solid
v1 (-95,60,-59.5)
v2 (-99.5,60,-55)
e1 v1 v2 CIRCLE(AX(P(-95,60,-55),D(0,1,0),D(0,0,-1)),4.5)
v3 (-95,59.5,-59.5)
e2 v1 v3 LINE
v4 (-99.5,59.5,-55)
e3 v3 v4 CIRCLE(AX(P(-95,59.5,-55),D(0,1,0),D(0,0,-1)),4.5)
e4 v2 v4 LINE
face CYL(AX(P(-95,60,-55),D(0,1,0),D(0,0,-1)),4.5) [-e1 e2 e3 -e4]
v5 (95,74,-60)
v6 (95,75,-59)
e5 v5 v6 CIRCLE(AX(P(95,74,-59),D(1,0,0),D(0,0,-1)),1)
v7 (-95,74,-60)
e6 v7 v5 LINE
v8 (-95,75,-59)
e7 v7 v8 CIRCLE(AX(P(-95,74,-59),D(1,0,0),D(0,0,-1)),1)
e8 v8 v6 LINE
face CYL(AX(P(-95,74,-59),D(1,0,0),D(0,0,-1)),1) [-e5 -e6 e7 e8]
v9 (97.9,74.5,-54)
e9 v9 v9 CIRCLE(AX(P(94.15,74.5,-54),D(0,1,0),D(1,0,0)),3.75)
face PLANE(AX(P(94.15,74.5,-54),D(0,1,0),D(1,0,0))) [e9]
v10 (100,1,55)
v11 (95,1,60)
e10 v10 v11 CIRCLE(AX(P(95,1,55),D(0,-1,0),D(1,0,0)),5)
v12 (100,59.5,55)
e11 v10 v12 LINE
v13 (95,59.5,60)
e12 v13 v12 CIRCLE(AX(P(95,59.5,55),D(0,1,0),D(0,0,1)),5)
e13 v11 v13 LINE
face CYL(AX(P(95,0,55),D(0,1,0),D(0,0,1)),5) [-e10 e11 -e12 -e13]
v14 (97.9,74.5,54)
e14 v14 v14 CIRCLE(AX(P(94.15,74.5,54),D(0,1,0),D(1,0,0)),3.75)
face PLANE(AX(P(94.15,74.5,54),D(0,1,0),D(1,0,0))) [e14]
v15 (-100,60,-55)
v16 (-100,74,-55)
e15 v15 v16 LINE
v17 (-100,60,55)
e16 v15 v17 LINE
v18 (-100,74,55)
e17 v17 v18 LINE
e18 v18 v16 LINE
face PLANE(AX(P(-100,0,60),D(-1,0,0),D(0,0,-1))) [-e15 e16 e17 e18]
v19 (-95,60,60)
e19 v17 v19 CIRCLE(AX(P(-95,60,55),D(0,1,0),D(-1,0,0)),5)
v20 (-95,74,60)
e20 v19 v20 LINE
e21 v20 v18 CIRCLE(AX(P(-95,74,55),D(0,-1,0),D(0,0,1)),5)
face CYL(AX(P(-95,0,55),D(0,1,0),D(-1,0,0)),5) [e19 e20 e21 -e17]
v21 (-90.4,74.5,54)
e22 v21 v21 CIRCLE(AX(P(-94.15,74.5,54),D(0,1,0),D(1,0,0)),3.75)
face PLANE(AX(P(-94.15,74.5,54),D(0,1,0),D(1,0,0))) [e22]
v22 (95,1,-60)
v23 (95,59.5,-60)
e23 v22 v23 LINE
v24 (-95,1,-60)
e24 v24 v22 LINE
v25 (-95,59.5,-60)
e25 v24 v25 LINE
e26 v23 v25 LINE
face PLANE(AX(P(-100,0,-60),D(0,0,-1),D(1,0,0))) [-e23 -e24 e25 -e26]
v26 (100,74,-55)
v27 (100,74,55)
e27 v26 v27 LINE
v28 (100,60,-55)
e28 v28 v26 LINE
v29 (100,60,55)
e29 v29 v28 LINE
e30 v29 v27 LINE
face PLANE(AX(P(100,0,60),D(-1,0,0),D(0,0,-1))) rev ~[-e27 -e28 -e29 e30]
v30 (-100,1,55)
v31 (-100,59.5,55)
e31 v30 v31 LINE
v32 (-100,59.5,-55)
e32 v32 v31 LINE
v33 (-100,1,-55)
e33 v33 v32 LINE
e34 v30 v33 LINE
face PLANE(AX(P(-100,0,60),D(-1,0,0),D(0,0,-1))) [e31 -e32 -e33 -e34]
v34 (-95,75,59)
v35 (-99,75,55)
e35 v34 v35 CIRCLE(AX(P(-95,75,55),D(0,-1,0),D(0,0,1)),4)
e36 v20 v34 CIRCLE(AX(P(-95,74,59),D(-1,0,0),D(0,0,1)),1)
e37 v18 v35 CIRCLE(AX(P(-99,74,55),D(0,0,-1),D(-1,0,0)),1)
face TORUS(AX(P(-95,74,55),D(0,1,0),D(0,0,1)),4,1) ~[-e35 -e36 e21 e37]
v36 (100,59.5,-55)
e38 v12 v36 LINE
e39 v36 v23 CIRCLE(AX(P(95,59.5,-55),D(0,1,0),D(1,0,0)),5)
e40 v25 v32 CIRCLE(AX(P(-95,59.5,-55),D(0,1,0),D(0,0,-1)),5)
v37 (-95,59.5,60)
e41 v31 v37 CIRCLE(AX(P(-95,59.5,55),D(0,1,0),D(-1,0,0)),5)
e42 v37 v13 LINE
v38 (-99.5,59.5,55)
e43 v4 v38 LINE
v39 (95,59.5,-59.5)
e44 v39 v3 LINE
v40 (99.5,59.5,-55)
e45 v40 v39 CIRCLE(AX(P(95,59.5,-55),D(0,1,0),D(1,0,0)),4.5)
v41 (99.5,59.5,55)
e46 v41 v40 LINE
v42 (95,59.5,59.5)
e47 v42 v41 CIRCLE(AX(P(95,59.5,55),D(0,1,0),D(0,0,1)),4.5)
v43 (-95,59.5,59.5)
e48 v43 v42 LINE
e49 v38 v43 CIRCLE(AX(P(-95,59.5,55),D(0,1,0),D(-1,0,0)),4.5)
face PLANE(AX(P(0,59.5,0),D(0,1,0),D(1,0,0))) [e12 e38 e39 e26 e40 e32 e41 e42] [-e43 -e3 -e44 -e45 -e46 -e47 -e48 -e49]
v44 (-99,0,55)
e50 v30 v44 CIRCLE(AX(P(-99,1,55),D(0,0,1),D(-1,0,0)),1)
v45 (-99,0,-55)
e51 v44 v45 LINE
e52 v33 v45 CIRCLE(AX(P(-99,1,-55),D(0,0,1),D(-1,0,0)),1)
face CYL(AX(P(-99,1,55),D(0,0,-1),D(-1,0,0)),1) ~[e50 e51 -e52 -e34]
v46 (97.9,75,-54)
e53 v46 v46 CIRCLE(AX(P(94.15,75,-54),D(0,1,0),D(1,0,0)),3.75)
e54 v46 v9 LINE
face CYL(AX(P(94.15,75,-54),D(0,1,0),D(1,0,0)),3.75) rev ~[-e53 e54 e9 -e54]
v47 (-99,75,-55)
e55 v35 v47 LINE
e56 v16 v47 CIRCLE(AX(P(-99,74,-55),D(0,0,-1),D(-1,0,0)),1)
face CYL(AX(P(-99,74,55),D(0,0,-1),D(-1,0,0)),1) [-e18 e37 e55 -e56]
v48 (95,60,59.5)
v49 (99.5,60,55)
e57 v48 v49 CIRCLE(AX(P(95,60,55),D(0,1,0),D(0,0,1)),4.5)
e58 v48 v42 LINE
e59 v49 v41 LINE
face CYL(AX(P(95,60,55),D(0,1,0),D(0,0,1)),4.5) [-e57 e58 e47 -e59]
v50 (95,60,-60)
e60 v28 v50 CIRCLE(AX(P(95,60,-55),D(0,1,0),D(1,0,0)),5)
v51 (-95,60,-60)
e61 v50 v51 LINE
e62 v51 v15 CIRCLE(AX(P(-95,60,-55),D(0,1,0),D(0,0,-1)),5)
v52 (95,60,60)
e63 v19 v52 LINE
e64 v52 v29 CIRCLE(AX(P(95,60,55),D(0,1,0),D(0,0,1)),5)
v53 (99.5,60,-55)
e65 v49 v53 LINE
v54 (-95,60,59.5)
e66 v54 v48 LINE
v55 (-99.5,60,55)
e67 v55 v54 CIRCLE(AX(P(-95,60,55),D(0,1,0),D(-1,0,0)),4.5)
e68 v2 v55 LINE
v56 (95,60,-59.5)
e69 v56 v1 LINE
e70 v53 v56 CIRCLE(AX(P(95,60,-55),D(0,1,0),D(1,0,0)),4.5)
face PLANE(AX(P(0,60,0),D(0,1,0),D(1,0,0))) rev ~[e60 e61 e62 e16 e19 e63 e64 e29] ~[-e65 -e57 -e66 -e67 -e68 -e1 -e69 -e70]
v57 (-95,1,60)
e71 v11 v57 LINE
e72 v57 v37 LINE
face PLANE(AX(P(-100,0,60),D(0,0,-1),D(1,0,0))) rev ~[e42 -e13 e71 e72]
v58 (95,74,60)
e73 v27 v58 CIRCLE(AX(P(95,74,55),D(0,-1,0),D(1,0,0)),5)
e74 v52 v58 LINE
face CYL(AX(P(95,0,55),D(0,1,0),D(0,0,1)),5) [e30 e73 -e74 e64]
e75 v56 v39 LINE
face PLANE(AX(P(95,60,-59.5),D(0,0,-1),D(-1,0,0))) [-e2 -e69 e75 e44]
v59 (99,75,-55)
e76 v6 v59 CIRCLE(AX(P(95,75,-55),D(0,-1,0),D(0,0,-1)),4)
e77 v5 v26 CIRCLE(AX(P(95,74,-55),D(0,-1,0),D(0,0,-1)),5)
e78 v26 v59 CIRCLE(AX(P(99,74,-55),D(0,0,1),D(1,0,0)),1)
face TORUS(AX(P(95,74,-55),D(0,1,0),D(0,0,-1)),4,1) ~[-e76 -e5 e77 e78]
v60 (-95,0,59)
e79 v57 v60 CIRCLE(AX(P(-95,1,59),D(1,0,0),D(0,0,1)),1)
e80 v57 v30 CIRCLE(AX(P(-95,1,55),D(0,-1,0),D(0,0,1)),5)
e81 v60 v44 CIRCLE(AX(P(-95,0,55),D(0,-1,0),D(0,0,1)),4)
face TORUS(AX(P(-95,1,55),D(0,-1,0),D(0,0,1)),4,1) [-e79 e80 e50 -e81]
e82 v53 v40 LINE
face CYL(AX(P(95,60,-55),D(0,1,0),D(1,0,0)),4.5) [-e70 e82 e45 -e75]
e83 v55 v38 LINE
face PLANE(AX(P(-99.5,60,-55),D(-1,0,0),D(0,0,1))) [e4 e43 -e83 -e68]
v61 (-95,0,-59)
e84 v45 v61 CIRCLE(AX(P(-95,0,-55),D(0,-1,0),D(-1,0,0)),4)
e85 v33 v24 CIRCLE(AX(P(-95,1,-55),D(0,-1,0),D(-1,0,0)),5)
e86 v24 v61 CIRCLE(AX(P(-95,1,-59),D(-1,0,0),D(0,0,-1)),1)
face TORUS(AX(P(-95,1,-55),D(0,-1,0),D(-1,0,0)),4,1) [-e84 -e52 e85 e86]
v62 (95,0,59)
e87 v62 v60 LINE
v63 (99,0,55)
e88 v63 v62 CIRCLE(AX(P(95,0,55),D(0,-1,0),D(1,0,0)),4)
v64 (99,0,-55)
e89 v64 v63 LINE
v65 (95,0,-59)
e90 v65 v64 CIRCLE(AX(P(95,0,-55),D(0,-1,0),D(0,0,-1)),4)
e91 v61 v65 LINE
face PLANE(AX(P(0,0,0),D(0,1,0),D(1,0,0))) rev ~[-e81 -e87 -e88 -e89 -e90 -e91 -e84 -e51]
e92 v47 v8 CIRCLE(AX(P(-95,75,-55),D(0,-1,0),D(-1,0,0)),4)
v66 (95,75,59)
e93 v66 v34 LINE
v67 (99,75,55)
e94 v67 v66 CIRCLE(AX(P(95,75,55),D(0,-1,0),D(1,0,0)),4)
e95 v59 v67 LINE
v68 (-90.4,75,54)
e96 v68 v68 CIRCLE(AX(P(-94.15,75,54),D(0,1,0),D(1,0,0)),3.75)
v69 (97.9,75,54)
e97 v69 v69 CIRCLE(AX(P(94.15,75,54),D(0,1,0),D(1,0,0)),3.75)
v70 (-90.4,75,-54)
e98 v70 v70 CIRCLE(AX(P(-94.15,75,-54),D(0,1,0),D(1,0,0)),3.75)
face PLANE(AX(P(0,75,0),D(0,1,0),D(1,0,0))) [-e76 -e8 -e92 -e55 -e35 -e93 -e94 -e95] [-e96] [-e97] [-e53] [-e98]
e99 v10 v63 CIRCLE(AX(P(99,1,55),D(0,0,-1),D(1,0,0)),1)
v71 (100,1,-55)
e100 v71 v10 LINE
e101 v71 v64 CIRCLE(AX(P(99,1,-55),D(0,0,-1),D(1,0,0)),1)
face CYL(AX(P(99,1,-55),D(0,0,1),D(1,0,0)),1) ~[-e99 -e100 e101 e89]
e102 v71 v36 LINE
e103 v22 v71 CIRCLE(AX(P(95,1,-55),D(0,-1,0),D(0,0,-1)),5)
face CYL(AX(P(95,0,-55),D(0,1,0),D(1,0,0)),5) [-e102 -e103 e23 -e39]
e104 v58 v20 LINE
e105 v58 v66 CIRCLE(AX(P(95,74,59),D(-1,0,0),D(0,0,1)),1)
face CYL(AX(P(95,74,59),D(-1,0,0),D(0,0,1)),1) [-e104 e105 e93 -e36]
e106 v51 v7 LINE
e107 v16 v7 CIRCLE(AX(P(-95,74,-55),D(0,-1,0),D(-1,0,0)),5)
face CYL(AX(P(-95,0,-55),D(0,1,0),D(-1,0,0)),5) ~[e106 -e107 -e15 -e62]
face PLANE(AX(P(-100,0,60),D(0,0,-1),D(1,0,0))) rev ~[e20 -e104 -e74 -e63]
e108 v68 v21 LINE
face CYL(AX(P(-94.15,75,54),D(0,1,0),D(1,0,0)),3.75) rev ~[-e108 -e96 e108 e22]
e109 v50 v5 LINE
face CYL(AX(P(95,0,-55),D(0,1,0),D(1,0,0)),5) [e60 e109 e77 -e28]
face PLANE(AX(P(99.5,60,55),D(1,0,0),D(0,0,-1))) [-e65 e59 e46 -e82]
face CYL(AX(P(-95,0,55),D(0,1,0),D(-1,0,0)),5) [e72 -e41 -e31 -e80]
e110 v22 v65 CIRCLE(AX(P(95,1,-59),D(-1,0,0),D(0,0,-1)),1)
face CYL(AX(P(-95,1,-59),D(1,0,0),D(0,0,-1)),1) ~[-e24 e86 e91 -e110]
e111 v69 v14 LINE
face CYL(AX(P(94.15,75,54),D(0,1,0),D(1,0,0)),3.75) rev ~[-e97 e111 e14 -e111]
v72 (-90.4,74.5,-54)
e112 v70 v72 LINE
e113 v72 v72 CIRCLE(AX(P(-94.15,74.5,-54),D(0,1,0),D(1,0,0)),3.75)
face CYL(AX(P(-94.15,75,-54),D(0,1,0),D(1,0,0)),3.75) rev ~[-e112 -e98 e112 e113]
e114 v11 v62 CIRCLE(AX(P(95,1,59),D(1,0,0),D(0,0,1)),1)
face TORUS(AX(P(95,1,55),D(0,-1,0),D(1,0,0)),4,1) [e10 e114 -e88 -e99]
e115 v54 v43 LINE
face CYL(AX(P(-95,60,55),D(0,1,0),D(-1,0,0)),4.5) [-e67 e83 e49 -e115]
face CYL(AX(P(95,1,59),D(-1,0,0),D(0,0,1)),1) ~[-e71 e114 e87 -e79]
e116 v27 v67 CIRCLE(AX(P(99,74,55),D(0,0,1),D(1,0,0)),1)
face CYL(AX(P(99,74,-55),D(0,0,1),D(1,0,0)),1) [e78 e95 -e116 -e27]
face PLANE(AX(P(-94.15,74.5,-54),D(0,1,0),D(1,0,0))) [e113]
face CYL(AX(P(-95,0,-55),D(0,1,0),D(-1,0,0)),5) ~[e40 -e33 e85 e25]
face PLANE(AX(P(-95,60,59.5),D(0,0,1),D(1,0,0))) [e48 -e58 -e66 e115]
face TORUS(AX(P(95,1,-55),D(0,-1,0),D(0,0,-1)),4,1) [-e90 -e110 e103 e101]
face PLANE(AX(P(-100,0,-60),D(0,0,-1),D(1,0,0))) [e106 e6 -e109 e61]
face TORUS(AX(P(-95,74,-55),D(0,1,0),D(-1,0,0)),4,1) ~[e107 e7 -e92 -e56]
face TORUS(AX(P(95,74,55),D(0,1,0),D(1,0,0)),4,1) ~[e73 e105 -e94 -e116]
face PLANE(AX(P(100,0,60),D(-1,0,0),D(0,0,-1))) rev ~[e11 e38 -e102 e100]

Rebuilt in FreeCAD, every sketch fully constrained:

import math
import FreeCAD as App
import Part
import Sketcher


def edges_at(feature, points):
    """Names of the edges that pass closest to the given points."""
    edges = feature.Shape.Edges
    near = lambda p: min(range(len(edges)), key=lambda i: edges[i].distToShape(Part.Vertex(*p))[0])
    return sorted({f"Edge{near(p) + 1}" for p in points})


def add_polygon(sketch, points):
    """Adds a closed chain of lines whose ends are joined by coincident constraints."""
    first, n = sketch.GeometryCount, len(points)
    for a, b in zip(points, points[1:] + points[:1]):
        sketch.addGeometry(Part.LineSegment(App.Vector(*a, 0), App.Vector(*b, 0)), False)
    for i in range(n):
        sketch.addConstraint(Sketcher.Constraint("Coincident", first + i, 2, first + (i + 1) % n, 1))

doc = App.newDocument("Part")
params = doc.addObject("Spreadsheet::Sheet", "Params")
for row, (alias, value) in enumerate([
    ("sketch1_width", "200 mm"),
    ("sketch1_height", "120 mm"),
    ("pad1_length", "75 mm"),
    ("fillet_radius", "5 mm"),
    ("sketch2_radius", "5 mm"),
    ("sketch2_radius2", "4.5 mm"),
    ("sketch2_width", "190 mm"),
    ("sketch2_height", "110 mm"),
    ("pocket1_length", "0.5 mm"),
    ("sketch3_diameter", "7.5 mm"),
    ("pocket2_length", "0.5 mm"),
    ("fillet2_radius", "1 mm"),
], start=1):
    params.set(f"A{row}", alias)
    params.set(f"B{row}", "=" + value)
    params.setAlias(f"B{row}", alias)

body = doc.addObject("PartDesign::Body", "Body")

# Sketch on XZ plane
sketch1 = body.newObject("Sketcher::SketchObject", "Sketch")
sketch1.AttachmentSupport = (doc.getObject("XZ_Plane"), [""])
sketch1.MapMode = "FlatFace"
add_polygon(sketch1, [(-100, -60), (-100, 60), (100, 60), (100, -60)])  # lines 0-3
sketch1.addConstraint(Sketcher.Constraint("Vertical", 0))
sketch1.addConstraint(Sketcher.Constraint("Horizontal", 1))
sketch1.addConstraint(Sketcher.Constraint("Vertical", 2))
sketch1.addConstraint(Sketcher.Constraint("Horizontal", 3))
sketch1.addConstraint(Sketcher.Constraint("Symmetric", 0, 2, 2, 2, -1, 1))
sketch1.addConstraint(Sketcher.Constraint("DistanceX", 1, 1, 1, 2, 200.0))
sketch1.addConstraint(Sketcher.Constraint("DistanceY", 0, 1, 0, 2, 120.0))
sketch1.setExpression("Constraints[9]", "Params.sketch1_width")
sketch1.setExpression("Constraints[10]", "Params.sketch1_height")
pad1 = body.newObject("PartDesign::Pad", "Pad")
pad1.Profile = sketch1
pad1.setExpression("Length", "Params.pad1_length")
pad1.Reversed = True
doc.recompute()

fillet = body.newObject("PartDesign::Fillet", "Fillet")
fillet.Base = (pad1, edges_at(pad1, [
    (-100, 37.5, -60),
    (100, 37.5, -60),
    (100, 37.5, 60),
    (-100, 37.5, 60),
]))
fillet.setExpression("Radius", "Params.fillet_radius")

# Sketch on XZ plane
sketch2 = body.newObject("Sketcher::SketchObject", "Sketch001")
sketch2.AttachmentSupport = (doc.getObject("XZ_Plane"), [""])
sketch2.MapMode = "FlatFace"
sketch2.AttachmentOffset = App.Placement(App.Vector(0, 0, -60), App.Rotation())
sketch2.addGeometry(Part.LineSegment(App.Vector(95, -60, 0), App.Vector(-95, -60, 0)), False)
sketch2.addGeometry(Part.ArcOfCircle(Part.Circle(App.Vector(-95, -55, 0), App.Vector(0, 0, 1), 5), math.radians(180), math.radians(270)), False)
sketch2.addGeometry(Part.LineSegment(App.Vector(-100, -55, 0), App.Vector(-100, 55, 0)), False)
sketch2.addGeometry(Part.ArcOfCircle(Part.Circle(App.Vector(-95, 55, 0), App.Vector(0, 0, 1), 5), math.radians(90), math.radians(180)), False)
sketch2.addGeometry(Part.LineSegment(App.Vector(-95, 60, 0), App.Vector(95, 60, 0)), False)
sketch2.addGeometry(Part.ArcOfCircle(Part.Circle(App.Vector(95, 55, 0), App.Vector(0, 0, 1), 5), math.radians(0), math.radians(90)), False)
sketch2.addGeometry(Part.LineSegment(App.Vector(100, 55, 0), App.Vector(100, -55, 0)), False)
sketch2.addGeometry(Part.ArcOfCircle(Part.Circle(App.Vector(95, -55, 0), App.Vector(0, 0, 1), 5), math.radians(-90), math.radians(0)), False)
sketch2.addGeometry(Part.LineSegment(App.Vector(-95, -59.5, 0), App.Vector(95, -59.5, 0)), False)
sketch2.addGeometry(Part.ArcOfCircle(Part.Circle(App.Vector(95, -55, 0), App.Vector(0, 0, 1), 4.5), math.radians(-90), math.radians(0)), False)
sketch2.addGeometry(Part.LineSegment(App.Vector(99.5, -55, 0), App.Vector(99.5, 55, 0)), False)
sketch2.addGeometry(Part.ArcOfCircle(Part.Circle(App.Vector(95, 55, 0), App.Vector(0, 0, 1), 4.5), math.radians(0), math.radians(90)), False)
sketch2.addGeometry(Part.LineSegment(App.Vector(95, 59.5, 0), App.Vector(-95, 59.5, 0)), False)
sketch2.addGeometry(Part.ArcOfCircle(Part.Circle(App.Vector(-95, 55, 0), App.Vector(0, 0, 1), 4.5), math.radians(90), math.radians(180)), False)
sketch2.addGeometry(Part.LineSegment(App.Vector(-99.5, 55, 0), App.Vector(-99.5, -55, 0)), False)
sketch2.addGeometry(Part.ArcOfCircle(Part.Circle(App.Vector(-95, -55, 0), App.Vector(0, 0, 1), 4.5), math.radians(-180), math.radians(-90)), False)
sketch2.addConstraint(Sketcher.Constraint("Tangent", 0, 2, 1, 2))
sketch2.addConstraint(Sketcher.Constraint("Tangent", 1, 1, 2, 1))
sketch2.addConstraint(Sketcher.Constraint("Tangent", 2, 2, 3, 2))
sketch2.addConstraint(Sketcher.Constraint("Tangent", 3, 1, 4, 1))
sketch2.addConstraint(Sketcher.Constraint("Tangent", 4, 2, 5, 2))
sketch2.addConstraint(Sketcher.Constraint("Tangent", 5, 1, 6, 1))
sketch2.addConstraint(Sketcher.Constraint("Tangent", 6, 2, 7, 2))
sketch2.addConstraint(Sketcher.Constraint("Tangent", 7, 1, 0, 1))
sketch2.addConstraint(Sketcher.Constraint("Tangent", 8, 2, 9, 1))
sketch2.addConstraint(Sketcher.Constraint("Tangent", 9, 2, 10, 1))
sketch2.addConstraint(Sketcher.Constraint("Tangent", 10, 2, 11, 1))
sketch2.addConstraint(Sketcher.Constraint("Tangent", 11, 2, 12, 1))
sketch2.addConstraint(Sketcher.Constraint("Tangent", 12, 2, 13, 1))
sketch2.addConstraint(Sketcher.Constraint("Tangent", 13, 2, 14, 1))
sketch2.addConstraint(Sketcher.Constraint("Tangent", 14, 2, 15, 1))
sketch2.addConstraint(Sketcher.Constraint("Tangent", 15, 2, 8, 1))
sketch2.addConstraint(Sketcher.Constraint("Horizontal", 0))
sketch2.addConstraint(Sketcher.Constraint("Vertical", 2))
sketch2.addConstraint(Sketcher.Constraint("Horizontal", 4))
sketch2.addConstraint(Sketcher.Constraint("Vertical", 6))
sketch2.addConstraint(Sketcher.Constraint("Horizontal", 8))
sketch2.addConstraint(Sketcher.Constraint("Vertical", 10))
sketch2.addConstraint(Sketcher.Constraint("Horizontal", 12))
sketch2.addConstraint(Sketcher.Constraint("Vertical", 14))
sketch2.addConstraint(Sketcher.Constraint("Coincident", 9, 3, 7, 3))
sketch2.addConstraint(Sketcher.Constraint("Coincident", 11, 3, 5, 3))
sketch2.addConstraint(Sketcher.Constraint("Coincident", 13, 3, 3, 3))
sketch2.addConstraint(Sketcher.Constraint("Equal", 1, 3))
sketch2.addConstraint(Sketcher.Constraint("Equal", 3, 5))
sketch2.addConstraint(Sketcher.Constraint("Equal", 5, 7))
sketch2.addConstraint(Sketcher.Constraint("Equal", 13, 15))
sketch2.addConstraint(Sketcher.Constraint("Symmetric", 1, 3, 5, 3, -1, 1))
sketch2.addConstraint(Sketcher.Constraint("Radius", 1, 5.0))
sketch2.addConstraint(Sketcher.Constraint("Radius", 9, 4.5))
sketch2.addConstraint(Sketcher.Constraint("DistanceX", 0, 2, 0, 1, 190.0))
sketch2.addConstraint(Sketcher.Constraint("DistanceY", 2, 1, 2, 2, 110.0))
sketch2.setExpression("Constraints[32]", "Params.sketch2_radius")
sketch2.setExpression("Constraints[33]", "Params.sketch2_radius2")
sketch2.setExpression("Constraints[34]", "Params.sketch2_width")
sketch2.setExpression("Constraints[35]", "Params.sketch2_height")
pocket1 = body.newObject("PartDesign::Pocket", "Pocket")
pocket1.Profile = sketch2
pocket1.setExpression("Length", "Params.pocket1_length")
pocket1.Reversed = True

# Sketch on XZ plane
sketch3 = body.newObject("Sketcher::SketchObject", "Sketch002")
sketch3.AttachmentSupport = (doc.getObject("XZ_Plane"), [""])
sketch3.MapMode = "FlatFace"
sketch3.AttachmentOffset = App.Placement(App.Vector(0, 0, -75), App.Rotation())
sketch3.addGeometry(Part.Circle(App.Vector(-94.2, -54, 0), App.Vector(0, 0, 1), 3.8), False)
sketch3.addGeometry(Part.Circle(App.Vector(94.2, -54, 0), App.Vector(0, 0, 1), 3.8), False)
sketch3.addGeometry(Part.Circle(App.Vector(94.2, 54, 0), App.Vector(0, 0, 1), 3.8), False)
sketch3.addGeometry(Part.Circle(App.Vector(-94.2, 54, 0), App.Vector(0, 0, 1), 3.8), False)
sketch3.addConstraint(Sketcher.Constraint("Equal", 0, 1))
sketch3.addConstraint(Sketcher.Constraint("Equal", 1, 2))
sketch3.addConstraint(Sketcher.Constraint("Equal", 2, 3))
sketch3.addConstraint(Sketcher.Constraint("Symmetric", 0, 3, 2, 3, -1, 1))
sketch3.addConstraint(Sketcher.Constraint("Symmetric", 1, 3, 3, 3, -1, 1))
sketch3.addConstraint(Sketcher.Constraint("Symmetric", 0, 3, 1, 3, -2))
sketch3.addConstraint(Sketcher.Constraint("Diameter", 0, 7.5))
sketch3.addConstraint(Sketcher.Constraint("DistanceY", 0, 3, -1, 1, 54.0))
sketch3.addConstraint(Sketcher.Constraint("DistanceX", 0, 3, 1, 3, 188.3))
sketch3.setExpression("Constraints[6]", "Params.sketch3_diameter")
pocket2 = body.newObject("PartDesign::Pocket", "Pocket001")
pocket2.Profile = sketch3
pocket2.setExpression("Length", "Params.pocket2_length")
pocket2.Reversed = True
doc.recompute()

fillet2 = body.newObject("PartDesign::Fillet", "Fillet001")
fillet2.Base = (pocket2, edges_at(pocket2, [
    (-100, 0, 0),
    (-100, 75, 0),
    (0, 0, -60),
    (100, 0, 0),
    (0, 0, 60),
    (-98.536, 0, 58.536),
    (98.536, 0, 58.536),
    (98.536, 0, -58.536),
    (-98.536, 0, -58.536),
    (0, 75, -60),
    (0, 75, 60),
    (100, 75, 0),
    (-98.536, 75, 58.536),
    (98.536, 75, 58.536),
    (98.536, 75, -58.536),
    (-98.536, 75, -58.536),
]))
fillet2.setExpression("Radius", "Params.fillet2_radius")

doc.recompute()
